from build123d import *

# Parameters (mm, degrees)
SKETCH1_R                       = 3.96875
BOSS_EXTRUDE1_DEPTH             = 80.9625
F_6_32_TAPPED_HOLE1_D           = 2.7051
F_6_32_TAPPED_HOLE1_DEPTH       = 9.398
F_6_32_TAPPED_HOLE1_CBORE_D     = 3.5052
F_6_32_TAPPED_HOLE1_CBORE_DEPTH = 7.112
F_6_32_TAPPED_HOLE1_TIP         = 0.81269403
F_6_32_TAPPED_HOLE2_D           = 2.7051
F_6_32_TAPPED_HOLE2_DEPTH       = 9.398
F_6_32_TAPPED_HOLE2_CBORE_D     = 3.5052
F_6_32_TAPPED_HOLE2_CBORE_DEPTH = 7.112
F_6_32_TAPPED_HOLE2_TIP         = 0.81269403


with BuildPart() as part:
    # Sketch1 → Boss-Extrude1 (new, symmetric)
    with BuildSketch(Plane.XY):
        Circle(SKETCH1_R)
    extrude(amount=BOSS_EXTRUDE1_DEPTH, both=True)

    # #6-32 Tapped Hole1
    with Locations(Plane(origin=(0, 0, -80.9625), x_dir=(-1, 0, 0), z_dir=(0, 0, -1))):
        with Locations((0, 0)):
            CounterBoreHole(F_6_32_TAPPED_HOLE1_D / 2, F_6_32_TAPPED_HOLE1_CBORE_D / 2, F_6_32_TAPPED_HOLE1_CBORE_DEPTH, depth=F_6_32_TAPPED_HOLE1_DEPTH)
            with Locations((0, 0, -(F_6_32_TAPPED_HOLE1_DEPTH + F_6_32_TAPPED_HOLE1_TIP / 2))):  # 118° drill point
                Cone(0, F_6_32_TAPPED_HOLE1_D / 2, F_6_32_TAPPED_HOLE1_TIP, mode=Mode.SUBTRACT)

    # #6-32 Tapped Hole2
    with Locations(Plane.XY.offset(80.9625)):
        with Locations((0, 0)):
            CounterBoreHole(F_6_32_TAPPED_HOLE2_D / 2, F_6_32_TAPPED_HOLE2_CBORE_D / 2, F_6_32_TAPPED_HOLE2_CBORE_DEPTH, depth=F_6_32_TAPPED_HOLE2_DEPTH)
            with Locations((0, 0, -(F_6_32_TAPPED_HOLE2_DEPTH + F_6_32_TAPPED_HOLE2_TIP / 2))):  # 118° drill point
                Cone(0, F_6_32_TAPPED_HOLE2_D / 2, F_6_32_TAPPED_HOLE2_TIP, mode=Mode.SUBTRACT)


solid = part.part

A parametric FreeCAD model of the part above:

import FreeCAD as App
import Part
import Sketcher
from FreeCAD import Vector
Q = App.Units.Quantity

doc = App.newDocument("Part")
params = doc.addObject("Spreadsheet::Sheet", "Params")
for row, (alias, value) in enumerate([
    ("sketch1_diameter", "0.3125 in"),
    ("pad1_length", "6.375 in"),
    ("hole_diameter", "0.1065 in"),
    ("hole_depth", "0.37 in"),
    ("hole_cbore_diameter", "0.138 in"),
    ("hole_cbore_depth", "0.28 in"),
    ("hole2_diameter", "0.1065 in"),
    ("hole2_depth", "0.37 in"),
    ("hole2_cbore_diameter", "0.138 in"),
    ("hole2_cbore_depth", "0.28 in"),
], start=1):
    params.set(f"A{row}", alias)
    params.set(f"B{row}", "=" + value)
    params.setAlias(f"B{row}", alias)

body = doc.addObject("PartDesign::Body", "Body")

# Sketch on XY plane
sketch1 = body.newObject("Sketcher::SketchObject", "Sketch")
sketch1.AttachmentSupport = (doc.getObject("XY_Plane"), [""])
sketch1.MapMode = "FlatFace"
sketch1.addGeometry(Part.Circle(Vector(0, 0, 0), Vector(0, 0, 1), 3.96875), False)
sketch1.addConstraint([
    Sketcher.Constraint("Coincident", 0, 3, -1, 1),
    Sketcher.Constraint("Diameter", 0, Q("0.3125 in")),
])
sketch1.setExpression("Constraints[1]", "Params.sketch1_diameter")
pad1 = body.newObject("PartDesign::Pad", "Pad")
pad1.Profile = sketch1
pad1.setExpression("Length", "Params.pad1_length")
pad1.Midplane = True

# Sketch on XY plane
sketch2 = body.newObject("Sketcher::SketchObject", "Sketch001")
sketch2.AttachmentSupport = (doc.getObject("XY_Plane"), [""])
sketch2.MapMode = "FlatFace"
sketch2.AttachmentOffset = App.Placement(Vector(0, 0, -3.1875 * 25.4), App.Rotation())
sketch2.addGeometry(Part.Circle(Vector(0, 0, 0), Vector(0, 0, 1), 1.35255), False)
sketch2.addConstraint([
    Sketcher.Constraint("Coincident", 0, 3, -1, 1),
    Sketcher.Constraint("Diameter", 0, Q("0.1065 in")),
])
doc.recompute()
hole = body.newObject("PartDesign::Hole", "Hole")
hole.Profile = sketch2
hole.ThreadType = "None"
hole.setExpression("Diameter", "Params.hole_diameter")
hole.DepthType = "Dimension"
hole.setExpression("Depth", "Params.hole_depth")
hole.DrillPoint = "Angled"
hole.DrillPointAngle = 118
hole.HoleCutType = "Counterbore"
hole.setExpression("HoleCutDiameter", "Params.hole_cbore_diameter")
hole.setExpression("HoleCutDepth", "Params.hole_cbore_depth")
hole.Reversed = True

# Sketch on XY plane
sketch3 = body.newObject("Sketcher::SketchObject", "Sketch002")
sketch3.AttachmentSupport = (doc.getObject("XY_Plane"), [""])
sketch3.MapMode = "FlatFace"
sketch3.AttachmentOffset = App.Placement(Vector(0, 0, 3.1875 * 25.4), App.Rotation())
sketch3.addGeometry(Part.Circle(Vector(0, 0, 0), Vector(0, 0, 1), 1.35255), False)
sketch3.addConstraint([
    Sketcher.Constraint("Coincident", 0, 3, -1, 1),
    Sketcher.Constraint("Diameter", 0, Q("0.1065 in")),
])
doc.recompute()
hole2 = body.newObject("PartDesign::Hole", "Hole001")
hole2.Profile = sketch3
hole2.ThreadType = "None"
hole2.setExpression("Diameter", "Params.hole2_diameter")
hole2.DepthType = "Dimension"
hole2.setExpression("Depth", "Params.hole2_depth")
hole2.DrillPoint = "Angled"
hole2.DrillPointAngle = 118
hole2.HoleCutType = "Counterbore"
hole2.setExpression("HoleCutDiameter", "Params.hole2_cbore_diameter")
hole2.setExpression("HoleCutDepth", "Params.hole2_cbore_depth")

doc.recompute()
